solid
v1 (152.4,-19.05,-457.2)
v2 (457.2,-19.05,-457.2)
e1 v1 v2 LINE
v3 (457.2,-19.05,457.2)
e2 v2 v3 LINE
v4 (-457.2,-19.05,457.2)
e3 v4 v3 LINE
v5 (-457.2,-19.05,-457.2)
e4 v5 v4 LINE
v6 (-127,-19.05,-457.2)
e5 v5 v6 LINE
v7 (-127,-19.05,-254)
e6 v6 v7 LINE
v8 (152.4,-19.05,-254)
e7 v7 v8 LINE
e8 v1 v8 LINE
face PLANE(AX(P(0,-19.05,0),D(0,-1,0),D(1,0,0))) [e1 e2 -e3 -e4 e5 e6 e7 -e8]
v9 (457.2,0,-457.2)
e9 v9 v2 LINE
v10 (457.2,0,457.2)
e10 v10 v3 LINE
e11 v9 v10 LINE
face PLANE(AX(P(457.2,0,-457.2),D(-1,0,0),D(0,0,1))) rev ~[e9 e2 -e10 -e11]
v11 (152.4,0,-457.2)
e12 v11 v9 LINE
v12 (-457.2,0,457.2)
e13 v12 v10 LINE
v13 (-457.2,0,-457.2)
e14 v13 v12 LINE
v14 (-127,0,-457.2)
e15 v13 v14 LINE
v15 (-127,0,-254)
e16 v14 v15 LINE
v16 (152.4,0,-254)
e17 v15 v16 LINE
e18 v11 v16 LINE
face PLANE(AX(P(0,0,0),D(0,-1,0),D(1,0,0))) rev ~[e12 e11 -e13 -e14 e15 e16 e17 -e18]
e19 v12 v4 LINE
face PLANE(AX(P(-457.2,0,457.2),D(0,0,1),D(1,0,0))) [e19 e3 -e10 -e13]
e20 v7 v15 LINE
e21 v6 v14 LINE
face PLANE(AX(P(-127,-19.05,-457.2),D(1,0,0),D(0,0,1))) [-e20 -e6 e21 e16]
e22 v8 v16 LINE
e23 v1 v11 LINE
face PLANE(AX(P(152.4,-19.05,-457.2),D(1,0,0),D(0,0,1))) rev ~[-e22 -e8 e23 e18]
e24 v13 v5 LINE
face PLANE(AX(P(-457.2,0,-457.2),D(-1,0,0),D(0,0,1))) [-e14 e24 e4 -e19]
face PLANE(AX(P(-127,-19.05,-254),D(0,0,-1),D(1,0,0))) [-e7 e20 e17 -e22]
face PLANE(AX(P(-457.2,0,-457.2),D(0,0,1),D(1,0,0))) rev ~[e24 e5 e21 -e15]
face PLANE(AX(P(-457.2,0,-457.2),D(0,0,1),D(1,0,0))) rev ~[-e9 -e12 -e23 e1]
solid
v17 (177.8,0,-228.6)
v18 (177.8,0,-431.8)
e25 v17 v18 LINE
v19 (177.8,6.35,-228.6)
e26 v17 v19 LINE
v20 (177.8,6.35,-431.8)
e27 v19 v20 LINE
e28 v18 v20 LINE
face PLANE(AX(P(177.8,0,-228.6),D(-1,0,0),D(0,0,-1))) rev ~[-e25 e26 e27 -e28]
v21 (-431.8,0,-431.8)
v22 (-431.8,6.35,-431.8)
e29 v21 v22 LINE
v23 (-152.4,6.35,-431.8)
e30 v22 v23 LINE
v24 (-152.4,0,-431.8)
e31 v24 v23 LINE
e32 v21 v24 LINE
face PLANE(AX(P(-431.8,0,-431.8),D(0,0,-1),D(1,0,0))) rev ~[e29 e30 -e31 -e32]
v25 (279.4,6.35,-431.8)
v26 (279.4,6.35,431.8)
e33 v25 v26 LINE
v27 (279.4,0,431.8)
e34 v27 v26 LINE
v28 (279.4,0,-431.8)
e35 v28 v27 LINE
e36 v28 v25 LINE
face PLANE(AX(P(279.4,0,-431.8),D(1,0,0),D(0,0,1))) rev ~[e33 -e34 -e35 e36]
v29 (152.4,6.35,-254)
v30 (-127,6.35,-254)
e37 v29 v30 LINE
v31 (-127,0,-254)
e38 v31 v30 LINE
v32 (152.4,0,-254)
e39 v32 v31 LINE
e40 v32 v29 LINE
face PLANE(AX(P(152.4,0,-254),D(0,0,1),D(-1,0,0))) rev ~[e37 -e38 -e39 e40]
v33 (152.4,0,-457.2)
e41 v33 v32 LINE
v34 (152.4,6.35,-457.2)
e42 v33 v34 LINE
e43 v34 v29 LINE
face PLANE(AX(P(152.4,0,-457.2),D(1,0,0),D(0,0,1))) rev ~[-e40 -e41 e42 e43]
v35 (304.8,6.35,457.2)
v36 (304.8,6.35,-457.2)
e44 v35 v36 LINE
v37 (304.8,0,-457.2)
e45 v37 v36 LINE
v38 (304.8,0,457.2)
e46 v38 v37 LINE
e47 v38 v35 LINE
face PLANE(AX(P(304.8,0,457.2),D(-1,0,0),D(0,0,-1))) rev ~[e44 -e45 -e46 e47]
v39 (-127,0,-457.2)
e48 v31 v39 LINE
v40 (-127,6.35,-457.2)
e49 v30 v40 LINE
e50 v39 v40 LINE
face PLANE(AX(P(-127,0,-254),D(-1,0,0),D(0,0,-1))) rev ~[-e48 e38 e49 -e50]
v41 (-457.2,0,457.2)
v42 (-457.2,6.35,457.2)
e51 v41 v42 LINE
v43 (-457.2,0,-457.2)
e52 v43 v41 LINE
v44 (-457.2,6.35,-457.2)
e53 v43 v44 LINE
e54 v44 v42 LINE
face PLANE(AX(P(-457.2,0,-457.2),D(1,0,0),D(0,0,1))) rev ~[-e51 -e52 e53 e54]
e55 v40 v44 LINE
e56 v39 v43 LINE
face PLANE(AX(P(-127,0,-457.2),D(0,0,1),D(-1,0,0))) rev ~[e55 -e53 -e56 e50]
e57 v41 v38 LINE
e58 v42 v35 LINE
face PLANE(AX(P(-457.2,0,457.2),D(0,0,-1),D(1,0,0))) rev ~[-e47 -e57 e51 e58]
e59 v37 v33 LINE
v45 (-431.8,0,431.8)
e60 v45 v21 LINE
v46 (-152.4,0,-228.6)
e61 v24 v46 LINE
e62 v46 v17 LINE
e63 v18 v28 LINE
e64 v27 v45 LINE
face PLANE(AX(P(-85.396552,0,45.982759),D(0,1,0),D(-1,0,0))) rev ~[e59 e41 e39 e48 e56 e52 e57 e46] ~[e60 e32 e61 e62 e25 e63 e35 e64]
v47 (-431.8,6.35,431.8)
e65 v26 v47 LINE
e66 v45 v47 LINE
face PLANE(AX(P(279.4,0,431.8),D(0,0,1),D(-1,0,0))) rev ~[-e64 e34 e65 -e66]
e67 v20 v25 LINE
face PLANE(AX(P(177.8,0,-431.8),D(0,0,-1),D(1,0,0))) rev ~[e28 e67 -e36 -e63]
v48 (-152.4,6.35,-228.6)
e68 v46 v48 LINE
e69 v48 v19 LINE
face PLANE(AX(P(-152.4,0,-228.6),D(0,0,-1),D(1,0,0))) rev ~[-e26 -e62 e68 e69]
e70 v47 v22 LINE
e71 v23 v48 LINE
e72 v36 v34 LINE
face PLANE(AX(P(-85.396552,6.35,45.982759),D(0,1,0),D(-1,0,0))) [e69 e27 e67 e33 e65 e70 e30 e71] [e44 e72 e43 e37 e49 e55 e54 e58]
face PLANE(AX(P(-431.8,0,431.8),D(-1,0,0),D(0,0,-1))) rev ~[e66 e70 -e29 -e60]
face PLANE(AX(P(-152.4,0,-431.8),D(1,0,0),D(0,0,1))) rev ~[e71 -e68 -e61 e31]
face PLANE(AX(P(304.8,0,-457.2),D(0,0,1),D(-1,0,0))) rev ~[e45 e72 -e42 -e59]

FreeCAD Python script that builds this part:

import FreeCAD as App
import Part
import Sketcher

V = App.Vector
Q = App.Units.Quantity


def add_polygon(sketch, points):
    """Adds a closed chain of lines whose ends are joined by coincident constraints."""
    first, n = sketch.GeometryCount, len(points)
    for a, b in zip(points, points[1:] + points[:1]):
        sketch.addGeometry(Part.LineSegment(App.Vector(*a, 0), App.Vector(*b, 0)), False)
    for i in range(n):
        sketch.addConstraint(Sketcher.Constraint("Coincident", first + i, 2, first + (i + 1) % n, 1))

doc = App.newDocument("Part")
body = doc.addObject("PartDesign::Body", "Body")

sketch1 = body.newObject("Sketcher::SketchObject", "Sketch")
sketch1.AttachmentSupport = (doc.getObject("XZ_Plane"), [""])
sketch1.MapMode = "FlatFace"
add_polygon(sketch1, [(-457, 457), (-457, -457), (457, -457), (457, 457)])
sketch1.addConstraint([
    Sketcher.Constraint("Vertical", 0),
    Sketcher.Constraint("Horizontal", 1),
    Sketcher.Constraint("Vertical", 2),
    Sketcher.Constraint("Horizontal", 3),
    Sketcher.Constraint("Symmetric", 0, 2, 2, 2, -1, 1),
    Sketcher.Constraint("Equal", 3, 0),
    Sketcher.Constraint("DistanceX", 1, 1, 1, 2, Q("36 in")),
])
pad1 = body.newObject("PartDesign::Pad", "Pad")
pad1.Profile = sketch1
pad1.Length = Q("0.75 in")

sketch2 = body.newObject("Sketcher::SketchObject", "Sketch001")
sketch2.AttachmentSupport = (doc.getObject("XZ_Plane"), [""])
sketch2.MapMode = "FlatFace"
sketch2.AttachmentOffset = App.Placement(V(0, 0, 0.75 * 25.4), App.Rotation())
add_polygon(sketch2, [(-127, -254), (-127, -457), (152, -457), (152, -254)])
sketch2.addConstraint([
    Sketcher.Constraint("Vertical", 0),
    Sketcher.Constraint("Horizontal", 1),
    Sketcher.Constraint("Vertical", 2),
    Sketcher.Constraint("Horizontal", 3),
    Sketcher.Constraint("DistanceX", 1, 1, 1, 2, Q("11 in")),
    Sketcher.Constraint("DistanceY", 0, 2, 0, 1, Q("8 in")),
    Sketcher.Constraint("DistanceX", 0, 2, -1, 1, Q("5 in")),
    Sketcher.Constraint("DistanceY", 0, 2, -1, 1, Q("18 in")),
])
pocket1 = body.newObject("PartDesign::Pocket", "Pocket")
pocket1.Profile = sketch2
pocket1.Length = 25
body2 = doc.addObject("PartDesign::Body", "Body001")

sketch3 = body2.newObject("Sketcher::SketchObject", "Sketch002")
sketch3.AttachmentSupport = (doc.getObject("XZ_Plane001"), [""])
sketch3.MapMode = "FlatFace"
add_polygon(sketch3, [(-127, -254), (-127, -457), (-457, -457), (-457, 457), (305, 457), (305, -457), (152, -457), (152, -254)])
add_polygon(sketch3, [(-432, -432), (-152, -432), (-152, -229), (178, -229), (178, -432), (279, -432), (279, 432), (-432, 432)])
sketch3.addConstraint([
    Sketcher.Constraint("Vertical", 0),
    Sketcher.Constraint("Horizontal", 1),
    Sketcher.Constraint("Vertical", 2),
    Sketcher.Constraint("Horizontal", 3),
    Sketcher.Constraint("Vertical", 4),
    Sketcher.Constraint("Horizontal", 5),
    Sketcher.Constraint("Vertical", 6),
    Sketcher.Constraint("Horizontal", 7),
    Sketcher.Constraint("Horizontal", 8),
    Sketcher.Constraint("Vertical", 9),
    Sketcher.Constraint("Horizontal", 10),
    Sketcher.Constraint("Vertical", 11),
    Sketcher.Constraint("Horizontal", 12),
    Sketcher.Constraint("Vertical", 13),
    Sketcher.Constraint("Horizontal", 14),
    Sketcher.Constraint("Vertical", 15),
    Sketcher.Constraint("Horizontal", 1, 2, 4, 2),
    Sketcher.Constraint("Horizontal", 8, 2, 11, 2),
    Sketcher.Constraint("Equal", 7, 8),
    Sketcher.Constraint("Equal", 1, 10),
    Sketcher.Constraint("Equal", 6, 9),
    Sketcher.Constraint("DistanceX", 1, 2, 1, 1, Q("13 in")),
    Sketcher.Constraint("DistanceX", 3, 1, 3, 2, Q("30 in")),
    Sketcher.Constraint("DistanceX", 5, 2, 5, 1, Q("6 in")),
    Sketcher.Constraint("DistanceX", 12, 1, 12, 2, Q("4 in")),
    Sketcher.Constraint("DistanceY", 0, 2, 0, 1, Q("8 in")),
    Sketcher.Constraint("DistanceY", 2, 1, 2, 2, Q("36 in")),
    Sketcher.Constraint("DistanceY", 13, 1, 13, 2, Q("34 in")),
    Sketcher.Constraint("DistanceX", 0, 2, -1, 1, Q("5 in")),
    Sketcher.Constraint("DistanceY", 0, 2, -1, 1, Q("18 in")),
    Sketcher.Constraint("DistanceX", 8, 2, -1, 1, Q("6 in")),
    Sketcher.Constraint("DistanceY", 8, 2, -1, 1, Q("17 in")),
])
pad2 = body2.newObject("PartDesign::Pad", "Pad001")
pad2.Profile = sketch3
pad2.Length = Q("0.25 in")
pad2.Reversed = True

doc.recompute()
